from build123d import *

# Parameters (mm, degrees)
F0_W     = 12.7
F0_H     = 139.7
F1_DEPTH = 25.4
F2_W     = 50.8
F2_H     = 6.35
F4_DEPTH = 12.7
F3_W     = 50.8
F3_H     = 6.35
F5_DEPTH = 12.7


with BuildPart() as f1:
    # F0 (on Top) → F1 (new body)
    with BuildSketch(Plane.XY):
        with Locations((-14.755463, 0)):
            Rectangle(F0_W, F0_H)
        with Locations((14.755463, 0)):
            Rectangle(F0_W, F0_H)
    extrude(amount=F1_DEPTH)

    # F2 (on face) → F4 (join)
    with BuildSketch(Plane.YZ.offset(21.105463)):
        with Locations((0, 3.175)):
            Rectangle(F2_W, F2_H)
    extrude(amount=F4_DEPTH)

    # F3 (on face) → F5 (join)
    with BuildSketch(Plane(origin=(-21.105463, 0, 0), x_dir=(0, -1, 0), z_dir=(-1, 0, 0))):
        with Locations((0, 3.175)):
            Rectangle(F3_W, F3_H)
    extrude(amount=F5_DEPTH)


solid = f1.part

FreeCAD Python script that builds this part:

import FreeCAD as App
import Part
import Sketcher
from FreeCAD import Vector
Q = App.Units.Quantity


def add_polygon(sketch, points):
    """Adds a closed chain of lines whose ends are joined by coincident constraints."""
    first, n = sketch.GeometryCount, len(points)
    for a, b in zip(points, points[1:] + points[:1]):
        sketch.addGeometry(Part.LineSegment(App.Vector(*a, 0), App.Vector(*b, 0)), False)
    for i in range(n):
        sketch.addConstraint(Sketcher.Constraint("Coincident", first + i, 2, first + (i + 1) % n, 1))

doc = App.newDocument("Part")
body = doc.addObject("PartDesign::Body", "Body")
body.AllowCompound = True

# Sketch on XY plane
sketch1 = body.newObject("Sketcher::SketchObject", "Sketch")
sketch1.AttachmentSupport = (doc.getObject("XY_Plane"), [""])
sketch1.MapMode = "FlatFace"
add_polygon(sketch1, [(-21, 70), (-21, -70), (-8, -70), (-8, 70)])  # lines 0-3
add_polygon(sketch1, [(8, 70), (8, -70), (21, -70), (21, 70)])  # lines 4-7
sketch1.addConstraint(Sketcher.Constraint("Vertical", 0))
sketch1.addConstraint(Sketcher.Constraint("Horizontal", 1))
sketch1.addConstraint(Sketcher.Constraint("Vertical", 2))
sketch1.addConstraint(Sketcher.Constraint("Horizontal", 3))
sketch1.addConstraint(Sketcher.Constraint("Vertical", 4))
sketch1.addConstraint(Sketcher.Constraint("Horizontal", 5))
sketch1.addConstraint(Sketcher.Constraint("Vertical", 6))
sketch1.addConstraint(Sketcher.Constraint("Horizontal", 7))
sketch1.addConstraint(Sketcher.Constraint("Symmetric", 2, 2, 4, 2, -1, 1))
sketch1.addConstraint(Sketcher.Constraint("Symmetric", 0, 2, 6, 2, -1, 1))
sketch1.addConstraint(Sketcher.Constraint("Horizontal", 1, 2, 4, 2))
sketch1.addConstraint(Sketcher.Constraint("DistanceX", 1, 1, 1, 2, Q("0.5 in")))
sketch1.addConstraint(Sketcher.Constraint("DistanceY", 0, 2, 0, 1, Q("5.5 in")))
sketch1.addConstraint(Sketcher.Constraint("DistanceX", 0, 2, -1, 1, 21.105463))
pad1 = body.newObject("PartDesign::Pad", "Pad")
pad1.Profile = sketch1
pad1.Length = Q("1 in")

# Sketch on YZ plane
sketch2 = body.newObject("Sketcher::SketchObject", "Sketch001")
sketch2.AttachmentSupport = (doc.getObject("YZ_Plane"), [""])
sketch2.MapMode = "FlatFace"
sketch2.AttachmentOffset = App.Placement(Vector(0, 0, 21.105463), App.Rotation())
add_polygon(sketch2, [(-25, 6), (-25, 0), (25, 0), (25, 6)])  # lines 0-3
sketch2.addConstraint(Sketcher.Constraint("Vertical", 0))
sketch2.addConstraint(Sketcher.Constraint("Horizontal", 1))
sketch2.addConstraint(Sketcher.Constraint("Vertical", 2))
sketch2.addConstraint(Sketcher.Constraint("Horizontal", 3))
sketch2.addConstraint(Sketcher.Constraint("Symmetric", 0, 2, 1, 2, -1, 1))
sketch2.addConstraint(Sketcher.Constraint("DistanceX", 1, 1, 1, 2, Q("2 in")))
sketch2.addConstraint(Sketcher.Constraint("DistanceY", 0, 2, 0, 1, Q("0.25 in")))
pad2 = body.newObject("PartDesign::Pad", "Pad001")
pad2.Profile = sketch2
pad2.Length = Q("0.5 in")

# Sketch on YZ plane
sketch3 = body.newObject("Sketcher::SketchObject", "Sketch002")
sketch3.AttachmentSupport = (doc.getObject("YZ_Plane"), [""])
sketch3.MapMode = "FlatFace"
sketch3.AttachmentOffset = App.Placement(Vector(0, 0, -21.105463), App.Rotation())
add_polygon(sketch3, [(25, 6), (25, 0), (-25, 0), (-25, 6)])  # lines 0-3
sketch3.addConstraint(Sketcher.Constraint("Vertical", 0))
sketch3.addConstraint(Sketcher.Constraint("Horizontal", 1))
sketch3.addConstraint(Sketcher.Constraint("Vertical", 2))
sketch3.addConstraint(Sketcher.Constraint("Horizontal", 3))
sketch3.addConstraint(Sketcher.Constraint("Symmetric", 0, 2, 1, 2, -1, 1))
sketch3.addConstraint(Sketcher.Constraint("DistanceX", 1, 2, 1, 1, Q("2 in")))
sketch3.addConstraint(Sketcher.Constraint("DistanceY", 0, 2, 0, 1, Q("0.25 in")))
pad3 = body.newObject("PartDesign::Pad", "Pad002")
pad3.Profile = sketch3
pad3.Length = Q("0.5 in")
pad3.Reversed = True

doc.recompute()
